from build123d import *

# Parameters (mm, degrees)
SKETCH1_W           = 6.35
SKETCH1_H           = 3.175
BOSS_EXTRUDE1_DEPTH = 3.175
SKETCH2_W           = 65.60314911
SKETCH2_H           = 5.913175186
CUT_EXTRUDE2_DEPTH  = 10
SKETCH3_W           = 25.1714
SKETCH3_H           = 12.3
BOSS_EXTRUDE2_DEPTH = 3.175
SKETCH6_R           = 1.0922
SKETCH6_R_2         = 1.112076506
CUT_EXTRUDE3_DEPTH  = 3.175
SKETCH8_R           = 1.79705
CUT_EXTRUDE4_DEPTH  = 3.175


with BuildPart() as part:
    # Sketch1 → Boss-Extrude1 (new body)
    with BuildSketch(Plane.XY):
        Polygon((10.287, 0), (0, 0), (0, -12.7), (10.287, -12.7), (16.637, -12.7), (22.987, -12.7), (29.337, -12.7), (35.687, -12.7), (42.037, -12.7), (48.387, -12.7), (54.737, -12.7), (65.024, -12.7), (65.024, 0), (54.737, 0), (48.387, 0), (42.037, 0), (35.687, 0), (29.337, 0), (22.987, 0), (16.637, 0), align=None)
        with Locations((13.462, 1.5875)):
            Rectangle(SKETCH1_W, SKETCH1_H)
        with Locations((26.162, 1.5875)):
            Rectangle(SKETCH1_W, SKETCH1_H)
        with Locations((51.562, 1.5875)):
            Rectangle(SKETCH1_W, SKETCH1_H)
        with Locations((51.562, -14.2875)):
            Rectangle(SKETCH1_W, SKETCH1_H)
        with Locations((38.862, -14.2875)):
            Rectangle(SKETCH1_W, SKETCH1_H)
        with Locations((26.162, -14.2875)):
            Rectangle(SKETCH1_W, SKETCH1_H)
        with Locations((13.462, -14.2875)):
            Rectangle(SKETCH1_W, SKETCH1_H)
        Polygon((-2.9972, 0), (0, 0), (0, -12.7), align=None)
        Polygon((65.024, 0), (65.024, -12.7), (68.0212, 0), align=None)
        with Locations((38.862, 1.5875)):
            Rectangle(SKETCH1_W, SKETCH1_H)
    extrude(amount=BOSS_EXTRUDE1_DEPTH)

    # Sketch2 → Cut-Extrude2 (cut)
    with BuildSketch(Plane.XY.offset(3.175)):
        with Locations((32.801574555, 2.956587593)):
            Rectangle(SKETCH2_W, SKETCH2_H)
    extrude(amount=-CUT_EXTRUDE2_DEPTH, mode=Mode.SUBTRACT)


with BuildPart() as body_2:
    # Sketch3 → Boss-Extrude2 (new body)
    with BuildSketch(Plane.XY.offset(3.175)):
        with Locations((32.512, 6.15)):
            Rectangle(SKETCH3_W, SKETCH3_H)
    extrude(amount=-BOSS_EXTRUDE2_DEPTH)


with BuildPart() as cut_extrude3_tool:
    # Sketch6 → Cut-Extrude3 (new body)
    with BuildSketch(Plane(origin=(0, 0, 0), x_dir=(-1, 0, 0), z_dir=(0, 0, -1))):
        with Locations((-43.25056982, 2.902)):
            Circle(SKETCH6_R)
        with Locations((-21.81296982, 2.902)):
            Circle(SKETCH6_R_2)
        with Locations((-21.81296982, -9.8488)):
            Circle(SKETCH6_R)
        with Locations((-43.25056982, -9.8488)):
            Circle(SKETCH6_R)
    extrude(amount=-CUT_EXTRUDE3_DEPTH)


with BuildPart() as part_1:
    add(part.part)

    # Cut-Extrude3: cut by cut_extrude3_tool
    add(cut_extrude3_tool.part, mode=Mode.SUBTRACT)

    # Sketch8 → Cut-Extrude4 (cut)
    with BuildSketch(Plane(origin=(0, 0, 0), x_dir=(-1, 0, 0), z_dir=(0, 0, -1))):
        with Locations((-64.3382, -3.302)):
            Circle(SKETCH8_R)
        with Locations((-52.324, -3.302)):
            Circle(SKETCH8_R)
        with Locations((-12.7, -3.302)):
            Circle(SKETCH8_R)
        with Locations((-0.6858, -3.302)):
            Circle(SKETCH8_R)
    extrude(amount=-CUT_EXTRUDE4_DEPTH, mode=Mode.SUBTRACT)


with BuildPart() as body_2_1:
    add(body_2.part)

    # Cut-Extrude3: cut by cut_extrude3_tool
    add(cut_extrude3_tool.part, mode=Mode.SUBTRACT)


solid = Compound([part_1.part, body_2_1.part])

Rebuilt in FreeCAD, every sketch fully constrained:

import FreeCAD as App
import Part
import Sketcher

V = App.Vector
Q = App.Units.Quantity

doc = App.newDocument("Part")
body = doc.addObject("PartDesign::Body", "Body")

# Sketch on XY plane
sketch1 = body.newObject("Sketcher::SketchObject", "Sketch")
sketch1.AttachmentSupport = (doc.getObject("XY_Plane"), [""])
sketch1.MapMode = "FlatFace"
sketch1.addGeometry([
    Part.LineSegment(V(0, -12.7, 0), V(10.3, -12.7, 0)),  # 0
    Part.LineSegment(V(10.3, -12.7, 0), V(10.3, -15.9, 0)),  # 1
    Part.LineSegment(V(10.3, -15.9, 0), V(16.6, -15.9, 0)),  # 2
    Part.LineSegment(V(16.6, -15.9, 0), V(16.6, -12.7, 0)),  # 3
    Part.LineSegment(V(16.6, -12.7, 0), V(23, -12.7, 0)),  # 4
    Part.LineSegment(V(23, -12.7, 0), V(23, -15.9, 0)),  # 5
    Part.LineSegment(V(23, -15.9, 0), V(29.3, -15.9, 0)),  # 6
    Part.LineSegment(V(29.3, -15.9, 0), V(29.3, -12.7, 0)),  # 7
    Part.LineSegment(V(29.3, -12.7, 0), V(35.7, -12.7, 0)),  # 8
    Part.LineSegment(V(35.7, -12.7, 0), V(35.7, -15.9, 0)),  # 9
    Part.LineSegment(V(35.7, -15.9, 0), V(42, -15.9, 0)),  # 10
    Part.LineSegment(V(42, -15.9, 0), V(42, -12.7, 0)),  # 11
    Part.LineSegment(V(42, -12.7, 0), V(48.4, -12.7, 0)),  # 12
    Part.LineSegment(V(48.4, -12.7, 0), V(48.4, -15.9, 0)),  # 13
    Part.LineSegment(V(48.4, -15.9, 0), V(54.7, -15.9, 0)),  # 14
    Part.LineSegment(V(54.7, -15.9, 0), V(54.7, -12.7, 0)),  # 15
    Part.LineSegment(V(54.7, -12.7, 0), V(65, -12.7, 0)),  # 16
    Part.LineSegment(V(65, -12.7, 0), V(68, 0, 0)),  # 17
    Part.LineSegment(V(68, 0, 0), V(54.7, 0, 0)),  # 18
    Part.LineSegment(V(54.7, 0, 0), V(54.7, 3.2, 0)),  # 19
    Part.LineSegment(V(54.7, 3.2, 0), V(48.4, 3.2, 0)),  # 20
    Part.LineSegment(V(48.4, 3.2, 0), V(48.4, 0, 0)),  # 21
    Part.LineSegment(V(48.4, 0, 0), V(42, 0, 0)),  # 22
    Part.LineSegment(V(42, 0, 0), V(42, 3.2, 0)),  # 23
    Part.LineSegment(V(42, 3.2, 0), V(35.7, 3.2, 0)),  # 24
    Part.LineSegment(V(35.7, 3.2, 0), V(35.7, 0, 0)),  # 25
    Part.LineSegment(V(35.7, 0, 0), V(29.3, 0, 0)),  # 26
    Part.LineSegment(V(29.3, 0, 0), V(29.3, 3.2, 0)),  # 27
    Part.LineSegment(V(29.3, 3.2, 0), V(23, 3.2, 0)),  # 28
    Part.LineSegment(V(23, 3.2, 0), V(23, 0, 0)),  # 29
    Part.LineSegment(V(23, 0, 0), V(16.6, 0, 0)),  # 30
    Part.LineSegment(V(16.6, 0, 0), V(16.6, 3.2, 0)),  # 31
    Part.LineSegment(V(16.6, 3.2, 0), V(10.3, 3.2, 0)),  # 32
    Part.LineSegment(V(10.3, 3.2, 0), V(10.3, 0, 0)),  # 33
    Part.LineSegment(V(10.3, 0, 0), V(-3, 0, 0)),  # 34
    Part.LineSegment(V(-3, 0, 0), V(0, -12.7, 0)),  # 35
], False)
sketch1.addConstraint([
    Sketcher.Constraint("Coincident", 0, 2, 1, 1),
    Sketcher.Constraint("Coincident", 1, 2, 2, 1),
    Sketcher.Constraint("Coincident", 2, 2, 3, 1),
    Sketcher.Constraint("Coincident", 3, 2, 4, 1),
    Sketcher.Constraint("Coincident", 4, 2, 5, 1),
    Sketcher.Constraint("Coincident", 5, 2, 6, 1),
    Sketcher.Constraint("Coincident", 6, 2, 7, 1),
    Sketcher.Constraint("Coincident", 7, 2, 8, 1),
    Sketcher.Constraint("Coincident", 8, 2, 9, 1),
    Sketcher.Constraint("Coincident", 9, 2, 10, 1),
    Sketcher.Constraint("Coincident", 10, 2, 11, 1),
    Sketcher.Constraint("Coincident", 11, 2, 12, 1),
    Sketcher.Constraint("Coincident", 12, 2, 13, 1),
    Sketcher.Constraint("Coincident", 13, 2, 14, 1),
    Sketcher.Constraint("Coincident", 14, 2, 15, 1),
    Sketcher.Constraint("Coincident", 15, 2, 16, 1),
    Sketcher.Constraint("Coincident", 16, 2, 17, 1),
    Sketcher.Constraint("Coincident", 17, 2, 18, 1),
    Sketcher.Constraint("Coincident", 18, 2, 19, 1),
    Sketcher.Constraint("Coincident", 19, 2, 20, 1),
    Sketcher.Constraint("Coincident", 20, 2, 21, 1),
    Sketcher.Constraint("Coincident", 21, 2, 22, 1),
    Sketcher.Constraint("Coincident", 22, 2, 23, 1),
    Sketcher.Constraint("Coincident", 23, 2, 24, 1),
    Sketcher.Constraint("Coincident", 24, 2, 25, 1),
    Sketcher.Constraint("Coincident", 25, 2, 26, 1),
    Sketcher.Constraint("Coincident", 26, 2, 27, 1),
    Sketcher.Constraint("Coincident", 27, 2, 28, 1),
    Sketcher.Constraint("Coincident", 28, 2, 29, 1),
    Sketcher.Constraint("Coincident", 29, 2, 30, 1),
    Sketcher.Constraint("Coincident", 30, 2, 31, 1),
    Sketcher.Constraint("Coincident", 31, 2, 32, 1),
    Sketcher.Constraint("Coincident", 32, 2, 33, 1),
    Sketcher.Constraint("Coincident", 33, 2, 34, 1),
    Sketcher.Constraint("Coincident", 34, 2, 35, 1),
    Sketcher.Constraint("Coincident", 35, 2, 0, 1),
    Sketcher.Constraint("Horizontal", 0),
    Sketcher.Constraint("Vertical", 1),
    Sketcher.Constraint("Horizontal", 2),
    Sketcher.Constraint("Vertical", 3),
    Sketcher.Constraint("Horizontal", 4),
    Sketcher.Constraint("Vertical", 5),
    Sketcher.Constraint("Horizontal", 6),
    Sketcher.Constraint("Vertical", 7),
    Sketcher.Constraint("Horizontal", 8),
    Sketcher.Constraint("Vertical", 9),
    Sketcher.Constraint("Horizontal", 10),
    Sketcher.Constraint("Vertical", 11),
    Sketcher.Constraint("Horizontal", 12),
    Sketcher.Constraint("Vertical", 13),
    Sketcher.Constraint("Horizontal", 14),
    Sketcher.Constraint("Vertical", 15),
    Sketcher.Constraint("Horizontal", 16),
    Sketcher.Constraint("Horizontal", 18),
    Sketcher.Constraint("Vertical", 19),
    Sketcher.Constraint("Horizontal", 20),
    Sketcher.Constraint("Vertical", 21),
    Sketcher.Constraint("Horizontal", 22),
    Sketcher.Constraint("Vertical", 23),
    Sketcher.Constraint("Horizontal", 24),
    Sketcher.Constraint("Vertical", 25),
    Sketcher.Constraint("Horizontal", 26),
    Sketcher.Constraint("Vertical", 27),
    Sketcher.Constraint("Horizontal", 28),
    Sketcher.Constraint("Vertical", 29),
    Sketcher.Constraint("Horizontal", 30),
    Sketcher.Constraint("Vertical", 31),
    Sketcher.Constraint("Horizontal", 32),
    Sketcher.Constraint("Vertical", 33),
    Sketcher.Constraint("Horizontal", 34),
    Sketcher.Constraint("PointOnObject", 17, 2, -1),
    Sketcher.Constraint("PointOnObject", 21, 2, -1),
    Sketcher.Constraint("PointOnObject", 25, 2, -1),
    Sketcher.Constraint("PointOnObject", 29, 2, -1),
    Sketcher.Constraint("PointOnObject", 33, 2, -1),
    Sketcher.Constraint("PointOnObject", 35, 2, -2),
    Sketcher.Constraint("Horizontal", 0, 2, 3, 2),
    Sketcher.Constraint("Horizontal", 2, 2, 5, 2),
    Sketcher.Constraint("Horizontal", 4, 2, 7, 2),
    Sketcher.Constraint("Horizontal", 6, 2, 9, 2),
    Sketcher.Constraint("Horizontal", 8, 2, 11, 2),
    Sketcher.Constraint("Horizontal", 10, 2, 13, 2),
    Sketcher.Constraint("Horizontal", 12, 2, 15, 2),
    Sketcher.Constraint("Horizontal", 20, 2, 23, 2),
    Sketcher.Constraint("Horizontal", 24, 2, 27, 2),
    Sketcher.Constraint("Horizontal", 28, 2, 31, 2),
    Sketcher.Constraint("Vertical", 15, 2, 18, 2),
    Sketcher.Constraint("Vertical", 13, 2, 20, 2),
    Sketcher.Constraint("Vertical", 11, 2, 22, 2),
    Sketcher.Constraint("Vertical", 9, 2, 24, 2),
    Sketcher.Constraint("Vertical", 7, 2, 26, 2),
    Sketcher.Constraint("Vertical", 5, 2, 28, 2),
    Sketcher.Constraint("Vertical", 3, 2, 30, 2),
    Sketcher.Constraint("Vertical", 1, 2, 32, 2),
    Sketcher.Constraint("Equal", 2, 4),
    Sketcher.Constraint("Equal", 4, 6),
    Sketcher.Constraint("Equal", 6, 8),
    Sketcher.Constraint("Equal", 8, 10),
    Sketcher.Constraint("Equal", 10, 12),
    Sketcher.Constraint("Equal", 12, 14),
    Sketcher.Constraint("Equal", 0, 16),
    Sketcher.Constraint("Equal", 18, 34),
    Sketcher.Constraint("Equal", 15, 19),
    Sketcher.Constraint("DistanceX", 2, 1, 2, 2, Q("0.25 in")),
    Sketcher.Constraint("DistanceY", 0, 2, -1, 1, Q("0.5 in")),
    Sketcher.Constraint("DistanceX", 0, 1, 0, 2, Q("0.405 in")),
    Sketcher.Constraint("DistanceX", 18, 2, 18, 1, Q("0.523 in")),
    Sketcher.Constraint("DistanceY", 1, 2, 1, 1, Q("0.125 in")),
])
pad1 = body.newObject("PartDesign::Pad", "Pad")
pad1.Profile = sketch1
pad1.Length = Q("0.125 in")

# Sketch on XY plane
sketch2 = body.newObject("Sketcher::SketchObject", "Sketch001")
sketch2.AttachmentSupport = (doc.getObject("XY_Plane"), [""])
sketch2.MapMode = "FlatFace"
sketch2.AttachmentOffset = App.Placement(V(0, 0, 0.125 * 25.4), App.Rotation())
sketch2.addGeometry([
    Part.LineSegment(V(0, 6, 0), V(0, 0, 0)),
    Part.LineSegment(V(0, 0, 0), V(66, 0, 0)),
    Part.LineSegment(V(66, 0, 0), V(66, 6, 0)),
    Part.LineSegment(V(66, 6, 0), V(0, 6, 0)),
], False)
sketch2.addConstraint([
    Sketcher.Constraint("Coincident", 0, 2, 1, 1),
    Sketcher.Constraint("Coincident", 1, 2, 2, 1),
    Sketcher.Constraint("Coincident", 2, 2, 3, 1),
    Sketcher.Constraint("Coincident", 3, 2, 0, 1),
    Sketcher.Constraint("Vertical", 0),
    Sketcher.Constraint("Horizontal", 1),
    Sketcher.Constraint("Vertical", 2),
    Sketcher.Constraint("Horizontal", 3),
    Sketcher.Constraint("Coincident", 0, 2, -1, 1),
    Sketcher.Constraint("DistanceX", 1, 1, 1, 2, 65.603149),
    Sketcher.Constraint("DistanceY", 0, 2, 0, 1, 5.913175),
])
pocket1 = body.newObject("PartDesign::Pocket", "Pocket")
pocket1.Profile = sketch2
pocket1.Length = 10
body2 = doc.addObject("PartDesign::Body", "Body001")

# Sketch on XY plane
sketch3 = body2.newObject("Sketcher::SketchObject", "Sketch002")
sketch3.AttachmentSupport = (doc.getObject("XY_Plane001"), [""])
sketch3.MapMode = "FlatFace"
sketch3.AttachmentOffset = App.Placement(V(0, 0, 0.125 * 25.4), App.Rotation())
sketch3.addGeometry([
    Part.LineSegment(V(20, 12, 0), V(20, 0, 0)),
    Part.LineSegment(V(20, 0, 0), V(45, 0, 0)),
    Part.LineSegment(V(45, 0, 0), V(45, 12, 0)),
    Part.LineSegment(V(45, 12, 0), V(20, 12, 0)),
], False)
sketch3.addConstraint([
    Sketcher.Constraint("Coincident", 0, 2, 1, 1),
    Sketcher.Constraint("Coincident", 1, 2, 2, 1),
    Sketcher.Constraint("Coincident", 2, 2, 3, 1),
    Sketcher.Constraint("Coincident", 3, 2, 0, 1),
    Sketcher.Constraint("Vertical", 0),
    Sketcher.Constraint("Horizontal", 1),
    Sketcher.Constraint("Vertical", 2),
    Sketcher.Constraint("Horizontal", 3),
    Sketcher.Constraint("PointOnObject", 0, 2, -1),
    Sketcher.Constraint("DistanceX", 1, 1, 1, 2, Q("0.991 in")),
    Sketcher.Constraint("DistanceY", 0, 2, 0, 1, 12.3),
    Sketcher.Constraint("DistanceX", -1, 1, 0, 2, Q("0.7845 in")),
])
pad2 = body2.newObject("PartDesign::Pad", "Pad001")
pad2.Profile = sketch3
pad2.Length = Q("0.125 in")
pad2.Reversed = True
body3 = doc.addObject("PartDesign::Body", "Body002")
body3.AllowCompound = True

# Sketch on XY plane
sketch4 = body3.newObject("Sketcher::SketchObject", "Sketch003")
sketch4.AttachmentSupport = (doc.getObject("XY_Plane002"), [""])
sketch4.MapMode = "FlatFace"
sketch4.addGeometry([
    Part.Circle(V(43.3, 2.9, 0), V(0, 0, 1), 1.1),
    Part.Circle(V(21.8, 2.9, 0), V(0, 0, 1), 1.1),
    Part.Circle(V(21.8, -9.8, 0), V(0, 0, 1), 1.1),
    Part.Circle(V(43.3, -9.8, 0), V(0, 0, 1), 1.1),
], False)
sketch4.addConstraint([
    Sketcher.Constraint("Equal", 0, 2),
    Sketcher.Constraint("Equal", 2, 3),
    Sketcher.Constraint("Horizontal", 0, 3, 1, 3),
    Sketcher.Constraint("Horizontal", 2, 3, 3, 3),
    Sketcher.Constraint("Vertical", 1, 3, 2, 3),
    Sketcher.Constraint("Vertical", 0, 3, 3, 3),
    Sketcher.Constraint("Diameter", 0, Q("0.086 in")),
    Sketcher.Constraint("DistanceX", 1, 3, 0, 3, Q("0.844 in")),
    Sketcher.Constraint("DistanceY", 2, 3, 1, 3, Q("0.502 in")),
    Sketcher.Constraint("Diameter", 1, 2.224153),
    Sketcher.Constraint("DistanceY", -1, 1, 0, 3, 2.902),
    Sketcher.Constraint("DistanceX", -1, 1, 0, 3, 43.25057),
])
pad3 = body3.newObject("PartDesign::Pad", "Pad002")
pad3.Profile = sketch4
pad3.Length = Q("0.125 in")
doc.recompute()

body4 = doc.addObject("PartDesign::Body", "Body003")
body4.BaseFeature = body3
boolean = body.newObject("PartDesign::Boolean", "Boolean")
boolean.Type = "Cut"
boolean.addObjects([body4])
doc.recompute()

# Sketch on XY plane
sketch5 = body.newObject("Sketcher::SketchObject", "Sketch004")
sketch5.AttachmentSupport = (doc.getObject("XY_Plane"), [""])
sketch5.MapMode = "FlatFace"
sketch5.addGeometry([
    Part.Circle(V(64.3, -3.3, 0), V(0, 0, 1), 1.8),
    Part.Circle(V(52.3, -3.3, 0), V(0, 0, 1), 1.8),
    Part.Circle(V(12.7, -3.3, 0), V(0, 0, 1), 1.8),
    Part.Circle(V(0.7, -3.3, 0), V(0, 0, 1), 1.8),
], False)
sketch5.addConstraint([
    Sketcher.Constraint("Equal", 0, 1),
    Sketcher.Constraint("Equal", 1, 2),
    Sketcher.Constraint("Equal", 2, 3),
    Sketcher.Constraint("Horizontal", 0, 3, 1, 3),
    Sketcher.Constraint("Horizontal", 1, 3, 2, 3),
    Sketcher.Constraint("Horizontal", 2, 3, 3, 3),
    Sketcher.Constraint("Diameter", 0, Q("0.1415 in")),
    Sketcher.Constraint("DistanceX", -1, 1, 2, 3, Q("0.5 in")),
    Sketcher.Constraint("DistanceY", 0, 3, -1, 1, Q("0.13 in")),
    Sketcher.Constraint("DistanceX", -1, 1, 1, 3, Q("2.06 in")),
    Sketcher.Constraint("DistanceX", -1, 1, 0, 3, Q("2.533 in")),
    Sketcher.Constraint("DistanceX", -1, 1, 3, 3, Q("0.027 in")),
])
pocket2 = body.newObject("PartDesign::Pocket", "Pocket001")
pocket2.Profile = sketch5
pocket2.Length = Q("0.125 in")
pocket2.Reversed = True
doc.recompute()

boolean2 = body2.newObject("PartDesign::Boolean", "Boolean001")
boolean2.Type = "Cut"
boolean2.addObjects([body3])

doc.recompute()
